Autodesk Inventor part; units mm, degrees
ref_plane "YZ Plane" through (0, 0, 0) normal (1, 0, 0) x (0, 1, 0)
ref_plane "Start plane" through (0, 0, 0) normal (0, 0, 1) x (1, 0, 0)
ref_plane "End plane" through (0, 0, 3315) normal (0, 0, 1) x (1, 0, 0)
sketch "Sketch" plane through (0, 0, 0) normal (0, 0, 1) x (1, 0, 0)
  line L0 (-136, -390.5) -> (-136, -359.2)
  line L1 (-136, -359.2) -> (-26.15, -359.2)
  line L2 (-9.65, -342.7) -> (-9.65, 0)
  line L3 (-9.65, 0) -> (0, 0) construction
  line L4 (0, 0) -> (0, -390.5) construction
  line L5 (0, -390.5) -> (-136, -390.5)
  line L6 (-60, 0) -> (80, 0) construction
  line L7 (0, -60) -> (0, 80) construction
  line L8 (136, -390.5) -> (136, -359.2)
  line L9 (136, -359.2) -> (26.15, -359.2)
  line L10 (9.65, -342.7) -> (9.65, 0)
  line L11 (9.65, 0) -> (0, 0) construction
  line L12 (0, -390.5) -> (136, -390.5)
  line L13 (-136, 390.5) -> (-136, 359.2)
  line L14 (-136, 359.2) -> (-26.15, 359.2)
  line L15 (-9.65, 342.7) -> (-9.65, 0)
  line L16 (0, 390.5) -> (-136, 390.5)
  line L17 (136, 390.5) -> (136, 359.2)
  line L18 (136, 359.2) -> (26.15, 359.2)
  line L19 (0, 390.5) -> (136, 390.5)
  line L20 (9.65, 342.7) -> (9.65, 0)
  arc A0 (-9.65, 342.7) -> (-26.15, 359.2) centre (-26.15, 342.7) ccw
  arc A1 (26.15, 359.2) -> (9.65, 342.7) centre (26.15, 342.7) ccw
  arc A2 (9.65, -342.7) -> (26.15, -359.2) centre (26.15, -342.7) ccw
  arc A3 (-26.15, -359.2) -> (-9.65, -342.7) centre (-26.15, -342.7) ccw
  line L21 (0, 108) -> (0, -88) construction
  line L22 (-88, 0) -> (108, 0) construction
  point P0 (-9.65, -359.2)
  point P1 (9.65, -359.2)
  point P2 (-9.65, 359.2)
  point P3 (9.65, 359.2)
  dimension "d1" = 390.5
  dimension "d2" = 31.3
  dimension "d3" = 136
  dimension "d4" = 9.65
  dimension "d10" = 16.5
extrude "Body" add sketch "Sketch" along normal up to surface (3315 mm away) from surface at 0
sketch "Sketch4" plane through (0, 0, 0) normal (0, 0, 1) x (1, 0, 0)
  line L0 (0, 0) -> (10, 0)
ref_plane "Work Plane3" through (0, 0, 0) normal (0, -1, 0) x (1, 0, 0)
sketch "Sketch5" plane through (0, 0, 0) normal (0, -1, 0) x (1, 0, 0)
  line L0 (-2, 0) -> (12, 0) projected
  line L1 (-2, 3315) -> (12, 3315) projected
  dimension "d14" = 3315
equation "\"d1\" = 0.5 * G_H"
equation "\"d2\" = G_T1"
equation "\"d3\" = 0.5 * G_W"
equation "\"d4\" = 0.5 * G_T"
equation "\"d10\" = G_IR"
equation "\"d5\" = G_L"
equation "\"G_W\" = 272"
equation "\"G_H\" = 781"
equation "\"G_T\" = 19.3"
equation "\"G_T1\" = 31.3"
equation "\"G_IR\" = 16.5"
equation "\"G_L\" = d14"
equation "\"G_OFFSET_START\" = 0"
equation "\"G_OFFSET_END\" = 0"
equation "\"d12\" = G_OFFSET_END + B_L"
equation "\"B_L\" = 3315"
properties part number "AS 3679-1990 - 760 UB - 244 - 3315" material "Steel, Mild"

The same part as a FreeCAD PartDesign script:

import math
import FreeCAD as App
import Part
import Sketcher

doc = App.newDocument("Part")
body = doc.addObject("PartDesign::Body", "Body")

# Sketch on XY plane
sketch1 = body.newObject("Sketcher::SketchObject", "Sketch")
sketch1.AttachmentSupport = (doc.getObject("XY_Plane"), [""])
sketch1.MapMode = "FlatFace"
sketch1.addGeometry([
    Part.LineSegment(App.Vector(-136, -359.2, 0), App.Vector(-136, -390.5, 0)),  # 0
    Part.LineSegment(App.Vector(-136, -390.5, 0), App.Vector(136, -390.5, 0)),  # 1
    Part.LineSegment(App.Vector(136, -390.5, 0), App.Vector(136, -359.2, 0)),  # 2
    Part.LineSegment(App.Vector(136, -359.2, 0), App.Vector(26.15, -359.2, 0)),  # 3
    Part.ArcOfCircle(Part.Circle(App.Vector(26.15, -342.7, 0), App.Vector(0, 0, 1), 16.5), math.radians(180), math.radians(270)),  # 4
    Part.LineSegment(App.Vector(9.65, -342.7, 0), App.Vector(9.65, 342.7, 0)),  # 5
    Part.ArcOfCircle(Part.Circle(App.Vector(26.15, 342.7, 0), App.Vector(0, 0, 1), 16.5), math.radians(90), math.radians(180)),  # 6
    Part.LineSegment(App.Vector(26.15, 359.2, 0), App.Vector(136, 359.2, 0)),  # 7
    Part.LineSegment(App.Vector(136, 359.2, 0), App.Vector(136, 390.5, 0)),  # 8
    Part.LineSegment(App.Vector(136, 390.5, 0), App.Vector(-136, 390.5, 0)),  # 9
    Part.LineSegment(App.Vector(-136, 390.5, 0), App.Vector(-136, 359.2, 0)),  # 10
    Part.LineSegment(App.Vector(-136, 359.2, 0), App.Vector(-26.15, 359.2, 0)),  # 11
    Part.ArcOfCircle(Part.Circle(App.Vector(-26.15, 342.7, 0), App.Vector(0, 0, 1), 16.5), math.radians(0), math.radians(90)),  # 12
    Part.LineSegment(App.Vector(-9.65, 342.7, 0), App.Vector(-9.65, -342.7, 0)),  # 13
    Part.ArcOfCircle(Part.Circle(App.Vector(-26.15, -342.7, 0), App.Vector(0, 0, 1), 16.5), math.radians(-90), math.radians(0)),  # 14
    Part.LineSegment(App.Vector(-26.15, -359.2, 0), App.Vector(-136, -359.2, 0)),  # 15
], False)
sketch1.addConstraint([
    Sketcher.Constraint("Coincident", 0, 2, 1, 1),
    Sketcher.Constraint("Coincident", 1, 2, 2, 1),
    Sketcher.Constraint("Coincident", 2, 2, 3, 1),
    Sketcher.Constraint("Tangent", 3, 2, 4, 2),
    Sketcher.Constraint("Tangent", 4, 1, 5, 1),
    Sketcher.Constraint("Tangent", 5, 2, 6, 2),
    Sketcher.Constraint("Tangent", 6, 1, 7, 1),
    Sketcher.Constraint("Coincident", 7, 2, 8, 1),
    Sketcher.Constraint("Coincident", 8, 2, 9, 1),
    Sketcher.Constraint("Coincident", 9, 2, 10, 1),
    Sketcher.Constraint("Coincident", 10, 2, 11, 1),
    Sketcher.Constraint("Tangent", 11, 2, 12, 2),
    Sketcher.Constraint("Tangent", 12, 1, 13, 1),
    Sketcher.Constraint("Tangent", 13, 2, 14, 2),
    Sketcher.Constraint("Tangent", 14, 1, 15, 1),
    Sketcher.Constraint("Coincident", 15, 2, 0, 1),
    Sketcher.Constraint("Vertical", 0),
    Sketcher.Constraint("Horizontal", 1),
    Sketcher.Constraint("Vertical", 2),
    Sketcher.Constraint("Horizontal", 3),
    Sketcher.Constraint("Vertical", 5),
    Sketcher.Constraint("Horizontal", 7),
    Sketcher.Constraint("Vertical", 8),
    Sketcher.Constraint("Horizontal", 9),
    Sketcher.Constraint("Vertical", 10),
    Sketcher.Constraint("Horizontal", 11),
    Sketcher.Constraint("Vertical", 13),
    Sketcher.Constraint("Horizontal", 15),
    Sketcher.Constraint("Equal", 4, 6),
    Sketcher.Constraint("Equal", 6, 12),
    Sketcher.Constraint("Equal", 12, 14),
    Sketcher.Constraint("Symmetric", 4, 3, 12, 3, -1, 1),
    Sketcher.Constraint("Symmetric", 0, 2, 8, 2, -1, 1),
    Sketcher.Constraint("Symmetric", 7, 2, 10, 2, -2),
    Sketcher.Constraint("Symmetric", 2, 2, 15, 2, -2),
    Sketcher.Constraint("Radius", 4, 16.5),
    Sketcher.Constraint("DistanceY", 0, 2, 0, 1, 31.3),
    Sketcher.Constraint("DistanceX", 0, 2, -1, 1, 136.0),
    Sketcher.Constraint("DistanceY", 0, 2, -1, 1, 390.5),
    Sketcher.Constraint("DistanceX", -1, 1, 4, 1, 9.65),
])
pad1 = body.newObject("PartDesign::Pad", "Pad")
pad1.Profile = sketch1
pad1.Length = 3315

doc.recompute()
